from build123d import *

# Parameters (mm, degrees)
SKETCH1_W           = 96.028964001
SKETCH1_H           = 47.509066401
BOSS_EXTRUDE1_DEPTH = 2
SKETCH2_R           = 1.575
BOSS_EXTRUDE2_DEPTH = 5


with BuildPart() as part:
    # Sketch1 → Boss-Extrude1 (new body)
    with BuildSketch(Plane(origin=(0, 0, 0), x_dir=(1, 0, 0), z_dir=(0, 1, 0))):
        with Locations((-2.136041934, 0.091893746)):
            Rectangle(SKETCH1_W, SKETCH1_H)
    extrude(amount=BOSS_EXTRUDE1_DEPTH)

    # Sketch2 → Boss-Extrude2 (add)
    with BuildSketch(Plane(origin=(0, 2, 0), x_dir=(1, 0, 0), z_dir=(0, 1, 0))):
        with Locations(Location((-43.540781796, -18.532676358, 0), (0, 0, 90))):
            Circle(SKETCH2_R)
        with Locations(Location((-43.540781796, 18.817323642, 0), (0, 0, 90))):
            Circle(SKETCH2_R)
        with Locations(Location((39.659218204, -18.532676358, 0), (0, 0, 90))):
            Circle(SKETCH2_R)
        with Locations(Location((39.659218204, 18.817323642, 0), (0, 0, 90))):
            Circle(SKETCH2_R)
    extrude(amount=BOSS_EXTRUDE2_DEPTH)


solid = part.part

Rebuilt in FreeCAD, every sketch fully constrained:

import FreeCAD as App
import Part
import Sketcher
from FreeCAD import Vector
Q = App.Units.Quantity

doc = App.newDocument("Part")
body = doc.addObject("PartDesign::Body", "Body")

sketch1 = doc.addObject("Sketcher::SketchObject", "Sketch")
body.addObject(sketch1)
sketch1.AttachmentSupport = (doc.XZ_Plane, [""])
sketch1.MapMode = "FlatFace"
sketch1.addGeometry([
    Part.LineSegment(Vector(-50, -24, 0), Vector(-50, 24, 0)),
    Part.LineSegment(Vector(-50, 24, 0), Vector(46, 24, 0)),
    Part.LineSegment(Vector(46, 24, 0), Vector(46, -24, 0)),
    Part.LineSegment(Vector(46, -24, 0), Vector(-50, -24, 0)),
], False)
sketch1.addConstraint([
    Sketcher.Constraint("Coincident", 0, 2, 1, 1),
    Sketcher.Constraint("Coincident", 1, 2, 2, 1),
    Sketcher.Constraint("Coincident", 2, 2, 3, 1),
    Sketcher.Constraint("Coincident", 3, 2, 0, 1),
    Sketcher.Constraint("Vertical", 0),
    Sketcher.Constraint("Horizontal", 1),
    Sketcher.Constraint("Vertical", 2),
    Sketcher.Constraint("Horizontal", 3),
    Sketcher.Constraint("DistanceX", 1, 1, 1, 2, Q("96.028964 mm")),
    Sketcher.Constraint("DistanceY", 0, 1, 0, 2, Q("47.509066 mm")),
    Sketcher.Constraint("DistanceY", -1, 1, 0, 2, Q("23.662639 mm")),
    Sketcher.Constraint("DistanceX", -1, 1, 1, 2, Q("45.87844 mm")),
])
pad1 = doc.addObject("PartDesign::Pad", "Pad")
body.addObject(pad1)
pad1.Profile = sketch1
pad1.Length = 2
pad1.Reversed = True

sketch2 = doc.addObject("Sketcher::SketchObject", "Sketch001")
body.addObject(sketch2)
sketch2.AttachmentSupport = (doc.XZ_Plane, [""])
sketch2.MapMode = "FlatFace"
sketch2.AttachmentOffset = App.Placement(Vector(0, 0, -2), App.Rotation())
sketch2.addGeometry([
    Part.Circle(Vector(-43.5, 18.5, 0), Vector(0, 0, 1), 1.6),
    Part.Circle(Vector(-43.5, -18.8, 0), Vector(0, 0, 1), 1.6),
    Part.Circle(Vector(39.7, 18.5, 0), Vector(0, 0, 1), 1.6),
    Part.Circle(Vector(39.7, -18.8, 0), Vector(0, 0, 1), 1.6),
], False)
sketch2.addConstraint([
    Sketcher.Constraint("Equal", 0, 1),
    Sketcher.Constraint("Equal", 1, 2),
    Sketcher.Constraint("Equal", 2, 3),
    Sketcher.Constraint("Horizontal", 0, 3, 2, 3),
    Sketcher.Constraint("Horizontal", 1, 3, 3, 3),
    Sketcher.Constraint("Vertical", 0, 3, 1, 3),
    Sketcher.Constraint("Vertical", 2, 3, 3, 3),
    Sketcher.Constraint("Diameter", 0, Q("3.15 mm")),
    Sketcher.Constraint("DistanceX", 0, 3, 2, 3, Q("83.2 mm")),
    Sketcher.Constraint("DistanceY", 1, 3, 0, 3, Q("37.35 mm")),
    Sketcher.Constraint("DistanceX", 0, 3, -1, 1, Q("43.540782 mm")),
    Sketcher.Constraint("DistanceY", -1, 1, 0, 3, Q("18.532676 mm")),
])
pad2 = doc.addObject("PartDesign::Pad", "Pad001")
body.addObject(pad2)
pad2.Profile = sketch2
pad2.Length = 5
pad2.Reversed = True

doc.recompute()
